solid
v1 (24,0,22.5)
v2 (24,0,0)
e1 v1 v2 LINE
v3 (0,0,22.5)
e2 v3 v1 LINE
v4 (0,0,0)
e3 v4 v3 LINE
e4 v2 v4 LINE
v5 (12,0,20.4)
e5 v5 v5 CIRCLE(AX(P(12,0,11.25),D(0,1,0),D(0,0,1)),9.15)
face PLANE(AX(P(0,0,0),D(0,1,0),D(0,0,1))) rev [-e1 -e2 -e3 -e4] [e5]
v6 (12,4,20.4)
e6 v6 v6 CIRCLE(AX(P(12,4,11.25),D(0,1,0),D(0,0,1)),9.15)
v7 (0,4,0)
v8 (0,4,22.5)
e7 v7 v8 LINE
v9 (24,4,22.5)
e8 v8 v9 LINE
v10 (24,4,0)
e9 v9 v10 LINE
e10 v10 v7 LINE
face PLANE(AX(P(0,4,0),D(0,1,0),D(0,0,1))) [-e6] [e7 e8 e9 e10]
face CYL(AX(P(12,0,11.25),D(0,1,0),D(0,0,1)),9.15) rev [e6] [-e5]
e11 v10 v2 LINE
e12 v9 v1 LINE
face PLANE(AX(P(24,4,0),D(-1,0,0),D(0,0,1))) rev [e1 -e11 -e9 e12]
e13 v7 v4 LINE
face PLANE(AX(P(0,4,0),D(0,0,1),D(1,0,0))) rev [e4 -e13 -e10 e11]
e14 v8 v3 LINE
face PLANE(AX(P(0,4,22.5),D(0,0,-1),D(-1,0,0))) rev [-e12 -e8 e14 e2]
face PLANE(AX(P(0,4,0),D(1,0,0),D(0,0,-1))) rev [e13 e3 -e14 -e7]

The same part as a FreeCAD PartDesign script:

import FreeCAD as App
import Part
import Sketcher
Q = App.Units.Quantity

doc = App.newDocument("Part")
params = doc.addObject("Spreadsheet::Sheet", "Params")
for row, (alias, value) in enumerate([
    ("sketch1_width", "24 mm"),
    ("sketch1_height", "22.5 mm"),
    ("pad1_length", "4 mm"),
    ("sketch2_diameter", "18.3 mm"),
], start=1):
    params.set(f"A{row}", alias)
    params.set(f"B{row}", "=" + value)
    params.setAlias(f"B{row}", alias)

body = doc.addObject("PartDesign::Body", "Body")

# Sketch on XZ plane
sketch1 = body.newObject("Sketcher::SketchObject", "Sketch")
sketch1.AttachmentSupport = (doc.getObject("XZ_Plane"), [""])
sketch1.MapMode = "FlatFace"
sketch1.addGeometry([
    Part.LineSegment(App.Vector(0, 0, 0), App.Vector(0, 22, 0)),
    Part.LineSegment(App.Vector(0, 22, 0), App.Vector(24, 22, 0)),
    Part.LineSegment(App.Vector(24, 22, 0), App.Vector(24, 0, 0)),
    Part.LineSegment(App.Vector(24, 0, 0), App.Vector(0, 0, 0)),
], False)
sketch1.addConstraint([
    Sketcher.Constraint("Coincident", 0, 2, 1, 1),
    Sketcher.Constraint("Coincident", 1, 2, 2, 1),
    Sketcher.Constraint("Coincident", 2, 2, 3, 1),
    Sketcher.Constraint("Coincident", 3, 2, 0, 1),
    Sketcher.Constraint("Vertical", 0),
    Sketcher.Constraint("Horizontal", 1),
    Sketcher.Constraint("Vertical", 2),
    Sketcher.Constraint("Horizontal", 3),
    Sketcher.Constraint("Coincident", 3, 2, -1, 1),
    Sketcher.Constraint("DistanceX", 1, 1, 1, 2, Q("24 mm")),
    Sketcher.Constraint("DistanceY", 0, 1, 0, 2, Q("22.5 mm")),
])
sketch1.setExpression("Constraints[9]", "Params.sketch1_width")
sketch1.setExpression("Constraints[10]", "Params.sketch1_height")
pad1 = body.newObject("PartDesign::Pad", "Pad")
pad1.Profile = sketch1
pad1.setExpression("Length", "Params.pad1_length")
pad1.Reversed = True

# Sketch on XZ plane
sketch2 = body.newObject("Sketcher::SketchObject", "Sketch001")
sketch2.AttachmentSupport = (doc.getObject("XZ_Plane"), [""])
sketch2.MapMode = "FlatFace"
sketch2.AttachmentOffset = App.Placement(App.Vector(0, 0, -4), App.Rotation())
sketch2.addGeometry(Part.Circle(App.Vector(12, 11, 0), App.Vector(0, 0, 1), 9), False)
sketch2.addConstraint([
    Sketcher.Constraint("Diameter", 0, Q("18.3 mm")),
    Sketcher.Constraint("DistanceX", -1, 1, 0, 3, Q("12 mm")),
    Sketcher.Constraint("DistanceY", -1, 1, 0, 3, Q("11.25 mm")),
])
sketch2.setExpression("Constraints[0]", "Params.sketch2_diameter")
pocket1 = body.newObject("PartDesign::Pocket", "Pocket")
pocket1.Profile = sketch2
pocket1.Type = "ThroughAll"
pocket1.Reversed = True

doc.recompute()
